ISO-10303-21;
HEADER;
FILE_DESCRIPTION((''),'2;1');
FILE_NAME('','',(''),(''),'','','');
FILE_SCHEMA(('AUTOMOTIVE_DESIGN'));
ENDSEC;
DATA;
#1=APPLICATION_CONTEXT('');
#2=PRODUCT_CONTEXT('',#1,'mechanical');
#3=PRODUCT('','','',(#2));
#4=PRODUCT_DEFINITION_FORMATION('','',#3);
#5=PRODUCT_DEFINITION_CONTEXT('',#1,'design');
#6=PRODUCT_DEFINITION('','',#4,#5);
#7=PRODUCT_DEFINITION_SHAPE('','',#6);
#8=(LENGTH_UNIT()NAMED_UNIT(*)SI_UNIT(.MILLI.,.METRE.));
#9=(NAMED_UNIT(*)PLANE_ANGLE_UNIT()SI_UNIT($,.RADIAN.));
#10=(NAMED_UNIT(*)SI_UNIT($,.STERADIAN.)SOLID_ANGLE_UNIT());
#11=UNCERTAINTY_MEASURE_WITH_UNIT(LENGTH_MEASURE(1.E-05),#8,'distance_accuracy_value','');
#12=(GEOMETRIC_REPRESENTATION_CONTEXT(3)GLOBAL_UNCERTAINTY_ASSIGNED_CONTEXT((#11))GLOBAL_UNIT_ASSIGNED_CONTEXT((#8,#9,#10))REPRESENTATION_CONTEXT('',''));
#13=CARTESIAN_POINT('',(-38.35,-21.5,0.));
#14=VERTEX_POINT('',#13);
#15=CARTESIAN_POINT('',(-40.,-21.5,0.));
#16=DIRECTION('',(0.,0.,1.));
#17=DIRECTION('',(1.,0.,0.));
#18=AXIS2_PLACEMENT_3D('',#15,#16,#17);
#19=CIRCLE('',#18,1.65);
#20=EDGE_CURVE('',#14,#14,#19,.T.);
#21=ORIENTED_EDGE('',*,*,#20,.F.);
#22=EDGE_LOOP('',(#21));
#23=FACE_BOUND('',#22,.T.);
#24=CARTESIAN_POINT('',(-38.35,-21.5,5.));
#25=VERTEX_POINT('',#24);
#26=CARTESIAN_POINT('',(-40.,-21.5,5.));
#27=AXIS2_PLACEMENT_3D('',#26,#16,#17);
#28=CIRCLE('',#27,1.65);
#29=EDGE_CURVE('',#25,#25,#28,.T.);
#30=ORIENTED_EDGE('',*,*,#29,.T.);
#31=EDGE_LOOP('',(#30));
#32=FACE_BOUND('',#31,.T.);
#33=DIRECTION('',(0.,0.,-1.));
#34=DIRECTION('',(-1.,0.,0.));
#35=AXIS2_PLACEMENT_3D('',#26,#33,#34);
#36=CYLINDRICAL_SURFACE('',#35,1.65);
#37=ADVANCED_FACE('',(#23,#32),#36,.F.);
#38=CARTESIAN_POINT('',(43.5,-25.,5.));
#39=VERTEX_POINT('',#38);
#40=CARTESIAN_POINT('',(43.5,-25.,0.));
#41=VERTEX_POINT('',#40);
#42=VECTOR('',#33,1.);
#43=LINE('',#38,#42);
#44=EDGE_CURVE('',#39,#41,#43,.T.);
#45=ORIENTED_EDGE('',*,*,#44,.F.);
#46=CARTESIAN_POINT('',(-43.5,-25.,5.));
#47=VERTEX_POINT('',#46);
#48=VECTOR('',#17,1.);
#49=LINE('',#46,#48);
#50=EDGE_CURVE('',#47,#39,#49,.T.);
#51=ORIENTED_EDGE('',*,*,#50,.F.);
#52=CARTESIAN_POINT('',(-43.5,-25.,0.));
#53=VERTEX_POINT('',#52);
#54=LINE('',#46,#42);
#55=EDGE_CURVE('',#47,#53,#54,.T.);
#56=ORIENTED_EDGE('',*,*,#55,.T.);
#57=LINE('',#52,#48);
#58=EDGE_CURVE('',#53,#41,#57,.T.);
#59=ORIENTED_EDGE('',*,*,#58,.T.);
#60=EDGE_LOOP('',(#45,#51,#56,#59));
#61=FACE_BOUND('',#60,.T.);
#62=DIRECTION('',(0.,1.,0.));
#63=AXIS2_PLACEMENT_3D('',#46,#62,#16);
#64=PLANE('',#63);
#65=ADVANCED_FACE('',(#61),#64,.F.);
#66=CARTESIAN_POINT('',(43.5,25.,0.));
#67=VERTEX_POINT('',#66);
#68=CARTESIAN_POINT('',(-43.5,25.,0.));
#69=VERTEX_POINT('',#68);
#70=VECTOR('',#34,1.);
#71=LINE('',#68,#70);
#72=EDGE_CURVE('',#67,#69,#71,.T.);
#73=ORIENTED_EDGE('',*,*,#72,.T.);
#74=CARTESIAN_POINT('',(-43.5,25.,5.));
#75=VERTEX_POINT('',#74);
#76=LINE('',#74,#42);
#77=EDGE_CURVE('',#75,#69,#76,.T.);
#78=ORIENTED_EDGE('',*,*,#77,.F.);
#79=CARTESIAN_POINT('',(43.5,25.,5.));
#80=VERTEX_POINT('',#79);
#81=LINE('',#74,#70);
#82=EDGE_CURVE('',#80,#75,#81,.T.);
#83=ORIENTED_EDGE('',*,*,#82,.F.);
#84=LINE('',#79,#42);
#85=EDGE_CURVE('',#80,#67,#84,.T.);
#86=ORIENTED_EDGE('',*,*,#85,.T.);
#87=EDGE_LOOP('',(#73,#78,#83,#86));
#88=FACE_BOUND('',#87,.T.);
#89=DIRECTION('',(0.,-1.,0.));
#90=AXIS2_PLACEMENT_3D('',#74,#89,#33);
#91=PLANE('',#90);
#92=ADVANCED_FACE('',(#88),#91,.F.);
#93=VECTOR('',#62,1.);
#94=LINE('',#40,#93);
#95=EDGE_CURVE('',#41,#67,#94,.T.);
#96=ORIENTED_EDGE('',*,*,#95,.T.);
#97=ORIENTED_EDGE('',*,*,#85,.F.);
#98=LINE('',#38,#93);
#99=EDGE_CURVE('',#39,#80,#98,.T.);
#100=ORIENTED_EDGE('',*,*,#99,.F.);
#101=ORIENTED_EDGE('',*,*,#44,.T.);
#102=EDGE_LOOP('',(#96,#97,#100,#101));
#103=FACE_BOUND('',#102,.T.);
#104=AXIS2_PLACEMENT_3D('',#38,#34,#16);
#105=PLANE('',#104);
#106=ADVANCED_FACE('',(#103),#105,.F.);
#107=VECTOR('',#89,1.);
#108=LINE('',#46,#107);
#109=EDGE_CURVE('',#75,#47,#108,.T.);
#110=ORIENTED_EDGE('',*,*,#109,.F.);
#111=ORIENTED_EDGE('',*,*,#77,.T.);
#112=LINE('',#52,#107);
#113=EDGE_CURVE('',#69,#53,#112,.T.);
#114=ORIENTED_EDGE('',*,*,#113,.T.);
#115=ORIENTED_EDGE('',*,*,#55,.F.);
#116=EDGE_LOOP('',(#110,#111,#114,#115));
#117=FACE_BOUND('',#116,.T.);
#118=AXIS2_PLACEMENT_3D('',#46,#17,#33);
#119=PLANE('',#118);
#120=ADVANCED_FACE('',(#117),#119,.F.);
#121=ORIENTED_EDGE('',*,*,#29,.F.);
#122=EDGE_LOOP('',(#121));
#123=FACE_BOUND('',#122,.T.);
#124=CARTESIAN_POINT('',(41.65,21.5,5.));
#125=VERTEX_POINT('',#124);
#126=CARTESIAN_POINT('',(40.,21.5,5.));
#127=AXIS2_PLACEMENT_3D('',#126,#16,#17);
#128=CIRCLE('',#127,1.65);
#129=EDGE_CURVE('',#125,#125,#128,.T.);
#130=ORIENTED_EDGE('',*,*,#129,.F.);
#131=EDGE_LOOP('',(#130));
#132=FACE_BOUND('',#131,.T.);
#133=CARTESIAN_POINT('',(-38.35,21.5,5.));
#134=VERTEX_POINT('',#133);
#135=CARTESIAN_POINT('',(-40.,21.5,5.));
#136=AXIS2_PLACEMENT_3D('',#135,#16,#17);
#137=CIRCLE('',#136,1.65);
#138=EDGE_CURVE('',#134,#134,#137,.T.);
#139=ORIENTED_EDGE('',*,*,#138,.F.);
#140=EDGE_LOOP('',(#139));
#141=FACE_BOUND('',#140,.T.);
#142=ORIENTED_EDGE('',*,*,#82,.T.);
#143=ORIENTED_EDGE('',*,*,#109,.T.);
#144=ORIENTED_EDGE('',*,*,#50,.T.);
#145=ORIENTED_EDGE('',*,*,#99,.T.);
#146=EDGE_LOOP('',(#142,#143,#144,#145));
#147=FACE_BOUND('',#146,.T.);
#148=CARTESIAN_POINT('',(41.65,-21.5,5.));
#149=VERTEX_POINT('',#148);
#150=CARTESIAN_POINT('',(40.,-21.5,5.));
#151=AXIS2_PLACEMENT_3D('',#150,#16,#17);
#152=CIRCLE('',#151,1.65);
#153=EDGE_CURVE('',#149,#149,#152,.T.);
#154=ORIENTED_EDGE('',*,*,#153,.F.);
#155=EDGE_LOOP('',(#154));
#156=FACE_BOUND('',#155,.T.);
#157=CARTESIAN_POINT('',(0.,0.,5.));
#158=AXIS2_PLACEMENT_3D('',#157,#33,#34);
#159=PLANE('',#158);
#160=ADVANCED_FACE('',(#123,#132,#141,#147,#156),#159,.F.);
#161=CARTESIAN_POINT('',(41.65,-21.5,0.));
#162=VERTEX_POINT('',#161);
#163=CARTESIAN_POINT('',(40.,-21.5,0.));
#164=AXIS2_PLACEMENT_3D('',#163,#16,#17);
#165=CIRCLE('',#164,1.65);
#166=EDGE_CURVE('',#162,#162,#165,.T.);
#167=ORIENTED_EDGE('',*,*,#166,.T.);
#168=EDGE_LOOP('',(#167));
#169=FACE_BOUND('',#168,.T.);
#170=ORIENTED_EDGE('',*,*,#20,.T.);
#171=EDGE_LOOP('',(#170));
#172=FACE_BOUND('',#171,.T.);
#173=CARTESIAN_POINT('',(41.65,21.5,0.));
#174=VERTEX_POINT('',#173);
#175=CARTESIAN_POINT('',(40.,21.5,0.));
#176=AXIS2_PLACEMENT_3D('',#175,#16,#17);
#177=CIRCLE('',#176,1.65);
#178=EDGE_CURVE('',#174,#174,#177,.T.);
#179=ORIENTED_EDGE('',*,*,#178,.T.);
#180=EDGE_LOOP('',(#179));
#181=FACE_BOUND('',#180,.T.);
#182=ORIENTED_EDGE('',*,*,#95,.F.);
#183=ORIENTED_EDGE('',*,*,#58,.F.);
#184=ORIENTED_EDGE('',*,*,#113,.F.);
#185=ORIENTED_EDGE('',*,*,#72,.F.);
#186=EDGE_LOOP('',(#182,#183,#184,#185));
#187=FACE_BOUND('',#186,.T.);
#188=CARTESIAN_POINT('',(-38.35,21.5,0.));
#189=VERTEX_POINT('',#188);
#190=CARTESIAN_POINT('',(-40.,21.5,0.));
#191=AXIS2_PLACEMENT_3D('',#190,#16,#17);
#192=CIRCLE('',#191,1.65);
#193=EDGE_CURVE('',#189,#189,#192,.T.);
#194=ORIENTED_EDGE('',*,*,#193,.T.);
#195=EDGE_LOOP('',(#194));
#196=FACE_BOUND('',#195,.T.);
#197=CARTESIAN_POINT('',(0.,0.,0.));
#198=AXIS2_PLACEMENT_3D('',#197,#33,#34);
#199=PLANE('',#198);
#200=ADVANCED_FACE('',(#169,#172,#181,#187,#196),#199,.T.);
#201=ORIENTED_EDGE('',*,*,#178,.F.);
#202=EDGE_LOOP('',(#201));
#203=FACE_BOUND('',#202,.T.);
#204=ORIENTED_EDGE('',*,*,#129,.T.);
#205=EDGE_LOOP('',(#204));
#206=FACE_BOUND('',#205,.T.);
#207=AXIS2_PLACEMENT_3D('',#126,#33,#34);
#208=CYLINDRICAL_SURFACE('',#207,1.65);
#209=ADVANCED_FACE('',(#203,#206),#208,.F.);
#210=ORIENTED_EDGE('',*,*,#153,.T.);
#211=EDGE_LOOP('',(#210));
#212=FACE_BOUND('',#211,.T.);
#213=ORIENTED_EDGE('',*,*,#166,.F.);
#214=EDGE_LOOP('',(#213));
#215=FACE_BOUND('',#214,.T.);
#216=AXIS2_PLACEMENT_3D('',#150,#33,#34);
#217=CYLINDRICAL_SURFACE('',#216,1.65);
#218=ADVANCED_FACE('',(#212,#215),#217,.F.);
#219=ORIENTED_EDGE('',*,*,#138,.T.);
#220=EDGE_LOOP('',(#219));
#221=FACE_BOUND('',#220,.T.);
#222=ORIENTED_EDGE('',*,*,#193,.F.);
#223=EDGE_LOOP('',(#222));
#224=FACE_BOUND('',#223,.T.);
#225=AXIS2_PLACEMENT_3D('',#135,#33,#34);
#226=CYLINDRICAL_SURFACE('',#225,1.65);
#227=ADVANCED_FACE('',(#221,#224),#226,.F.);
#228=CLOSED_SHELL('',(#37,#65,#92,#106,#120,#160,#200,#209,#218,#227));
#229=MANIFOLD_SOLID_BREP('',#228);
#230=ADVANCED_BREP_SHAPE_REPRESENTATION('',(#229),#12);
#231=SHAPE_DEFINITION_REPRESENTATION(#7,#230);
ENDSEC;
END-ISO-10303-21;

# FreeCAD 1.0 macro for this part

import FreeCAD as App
import Part
import Sketcher
from FreeCAD import Vector
Q = App.Units.Quantity


def add_polygon(sketch, points):
    """Adds a closed chain of lines whose ends are joined by coincident constraints."""
    first, n = sketch.GeometryCount, len(points)
    for a, b in zip(points, points[1:] + points[:1]):
        sketch.addGeometry(Part.LineSegment(App.Vector(*a, 0), App.Vector(*b, 0)), False)
    for i in range(n):
        sketch.addConstraint(Sketcher.Constraint("Coincident", first + i, 2, first + (i + 1) % n, 1))

doc = App.newDocument("Part")
body = doc.addObject("PartDesign::Body", "Body")

# Sketch on XY plane
sketch1 = body.newObject("Sketcher::SketchObject", "Sketch")
sketch1.AttachmentSupport = (doc.getObject("XY_Plane"), [""])
sketch1.MapMode = "FlatFace"
add_polygon(sketch1, [(-43.5, 25), (-43.5, -25), (43.5, -25), (43.5, 25)])  # lines 0-3
sketch1.addGeometry(Part.Circle(Vector(-40, -21.5, 0), Vector(0, 0, 1), 1.6), False)  # 4
sketch1.addGeometry(Part.Circle(Vector(40, -21.5, 0), Vector(0, 0, 1), 1.6), False)  # 5
sketch1.addGeometry(Part.Circle(Vector(-40, 21.5, 0), Vector(0, 0, 1), 1.6), False)  # 6
sketch1.addGeometry(Part.Circle(Vector(40, 21.5, 0), Vector(0, 0, 1), 1.6), False)  # 7
sketch1.addConstraint(Sketcher.Constraint("Vertical", 0))
sketch1.addConstraint(Sketcher.Constraint("Horizontal", 1))
sketch1.addConstraint(Sketcher.Constraint("Vertical", 2))
sketch1.addConstraint(Sketcher.Constraint("Horizontal", 3))
sketch1.addConstraint(Sketcher.Constraint("Equal", 4, 5))
sketch1.addConstraint(Sketcher.Constraint("Equal", 5, 6))
sketch1.addConstraint(Sketcher.Constraint("Equal", 6, 7))
sketch1.addConstraint(Sketcher.Constraint("Symmetric", 5, 3, 6, 3, -1, 1))
sketch1.addConstraint(Sketcher.Constraint("Symmetric", 4, 3, 7, 3, -1, 1))
sketch1.addConstraint(Sketcher.Constraint("Symmetric", 0, 2, 2, 2, -1, 1))
sketch1.addConstraint(Sketcher.Constraint("Symmetric", 4, 3, 5, 3, -2))
sketch1.addConstraint(Sketcher.Constraint("Diameter", 4, Q("3.3 mm")))
sketch1.addConstraint(Sketcher.Constraint("DistanceX", 1, 1, 1, 2, Q("87 mm")))
sketch1.addConstraint(Sketcher.Constraint("DistanceY", 0, 2, 0, 1, Q("50 mm")))
sketch1.addConstraint(Sketcher.Constraint("DistanceX", 4, 3, -1, 1, Q("40 mm")))
sketch1.addConstraint(Sketcher.Constraint("DistanceY", 4, 3, 6, 3, Q("43 mm")))
pad1 = body.newObject("PartDesign::Pad", "Pad")
pad1.Profile = sketch1
pad1.Length = 5

doc.recompute()
